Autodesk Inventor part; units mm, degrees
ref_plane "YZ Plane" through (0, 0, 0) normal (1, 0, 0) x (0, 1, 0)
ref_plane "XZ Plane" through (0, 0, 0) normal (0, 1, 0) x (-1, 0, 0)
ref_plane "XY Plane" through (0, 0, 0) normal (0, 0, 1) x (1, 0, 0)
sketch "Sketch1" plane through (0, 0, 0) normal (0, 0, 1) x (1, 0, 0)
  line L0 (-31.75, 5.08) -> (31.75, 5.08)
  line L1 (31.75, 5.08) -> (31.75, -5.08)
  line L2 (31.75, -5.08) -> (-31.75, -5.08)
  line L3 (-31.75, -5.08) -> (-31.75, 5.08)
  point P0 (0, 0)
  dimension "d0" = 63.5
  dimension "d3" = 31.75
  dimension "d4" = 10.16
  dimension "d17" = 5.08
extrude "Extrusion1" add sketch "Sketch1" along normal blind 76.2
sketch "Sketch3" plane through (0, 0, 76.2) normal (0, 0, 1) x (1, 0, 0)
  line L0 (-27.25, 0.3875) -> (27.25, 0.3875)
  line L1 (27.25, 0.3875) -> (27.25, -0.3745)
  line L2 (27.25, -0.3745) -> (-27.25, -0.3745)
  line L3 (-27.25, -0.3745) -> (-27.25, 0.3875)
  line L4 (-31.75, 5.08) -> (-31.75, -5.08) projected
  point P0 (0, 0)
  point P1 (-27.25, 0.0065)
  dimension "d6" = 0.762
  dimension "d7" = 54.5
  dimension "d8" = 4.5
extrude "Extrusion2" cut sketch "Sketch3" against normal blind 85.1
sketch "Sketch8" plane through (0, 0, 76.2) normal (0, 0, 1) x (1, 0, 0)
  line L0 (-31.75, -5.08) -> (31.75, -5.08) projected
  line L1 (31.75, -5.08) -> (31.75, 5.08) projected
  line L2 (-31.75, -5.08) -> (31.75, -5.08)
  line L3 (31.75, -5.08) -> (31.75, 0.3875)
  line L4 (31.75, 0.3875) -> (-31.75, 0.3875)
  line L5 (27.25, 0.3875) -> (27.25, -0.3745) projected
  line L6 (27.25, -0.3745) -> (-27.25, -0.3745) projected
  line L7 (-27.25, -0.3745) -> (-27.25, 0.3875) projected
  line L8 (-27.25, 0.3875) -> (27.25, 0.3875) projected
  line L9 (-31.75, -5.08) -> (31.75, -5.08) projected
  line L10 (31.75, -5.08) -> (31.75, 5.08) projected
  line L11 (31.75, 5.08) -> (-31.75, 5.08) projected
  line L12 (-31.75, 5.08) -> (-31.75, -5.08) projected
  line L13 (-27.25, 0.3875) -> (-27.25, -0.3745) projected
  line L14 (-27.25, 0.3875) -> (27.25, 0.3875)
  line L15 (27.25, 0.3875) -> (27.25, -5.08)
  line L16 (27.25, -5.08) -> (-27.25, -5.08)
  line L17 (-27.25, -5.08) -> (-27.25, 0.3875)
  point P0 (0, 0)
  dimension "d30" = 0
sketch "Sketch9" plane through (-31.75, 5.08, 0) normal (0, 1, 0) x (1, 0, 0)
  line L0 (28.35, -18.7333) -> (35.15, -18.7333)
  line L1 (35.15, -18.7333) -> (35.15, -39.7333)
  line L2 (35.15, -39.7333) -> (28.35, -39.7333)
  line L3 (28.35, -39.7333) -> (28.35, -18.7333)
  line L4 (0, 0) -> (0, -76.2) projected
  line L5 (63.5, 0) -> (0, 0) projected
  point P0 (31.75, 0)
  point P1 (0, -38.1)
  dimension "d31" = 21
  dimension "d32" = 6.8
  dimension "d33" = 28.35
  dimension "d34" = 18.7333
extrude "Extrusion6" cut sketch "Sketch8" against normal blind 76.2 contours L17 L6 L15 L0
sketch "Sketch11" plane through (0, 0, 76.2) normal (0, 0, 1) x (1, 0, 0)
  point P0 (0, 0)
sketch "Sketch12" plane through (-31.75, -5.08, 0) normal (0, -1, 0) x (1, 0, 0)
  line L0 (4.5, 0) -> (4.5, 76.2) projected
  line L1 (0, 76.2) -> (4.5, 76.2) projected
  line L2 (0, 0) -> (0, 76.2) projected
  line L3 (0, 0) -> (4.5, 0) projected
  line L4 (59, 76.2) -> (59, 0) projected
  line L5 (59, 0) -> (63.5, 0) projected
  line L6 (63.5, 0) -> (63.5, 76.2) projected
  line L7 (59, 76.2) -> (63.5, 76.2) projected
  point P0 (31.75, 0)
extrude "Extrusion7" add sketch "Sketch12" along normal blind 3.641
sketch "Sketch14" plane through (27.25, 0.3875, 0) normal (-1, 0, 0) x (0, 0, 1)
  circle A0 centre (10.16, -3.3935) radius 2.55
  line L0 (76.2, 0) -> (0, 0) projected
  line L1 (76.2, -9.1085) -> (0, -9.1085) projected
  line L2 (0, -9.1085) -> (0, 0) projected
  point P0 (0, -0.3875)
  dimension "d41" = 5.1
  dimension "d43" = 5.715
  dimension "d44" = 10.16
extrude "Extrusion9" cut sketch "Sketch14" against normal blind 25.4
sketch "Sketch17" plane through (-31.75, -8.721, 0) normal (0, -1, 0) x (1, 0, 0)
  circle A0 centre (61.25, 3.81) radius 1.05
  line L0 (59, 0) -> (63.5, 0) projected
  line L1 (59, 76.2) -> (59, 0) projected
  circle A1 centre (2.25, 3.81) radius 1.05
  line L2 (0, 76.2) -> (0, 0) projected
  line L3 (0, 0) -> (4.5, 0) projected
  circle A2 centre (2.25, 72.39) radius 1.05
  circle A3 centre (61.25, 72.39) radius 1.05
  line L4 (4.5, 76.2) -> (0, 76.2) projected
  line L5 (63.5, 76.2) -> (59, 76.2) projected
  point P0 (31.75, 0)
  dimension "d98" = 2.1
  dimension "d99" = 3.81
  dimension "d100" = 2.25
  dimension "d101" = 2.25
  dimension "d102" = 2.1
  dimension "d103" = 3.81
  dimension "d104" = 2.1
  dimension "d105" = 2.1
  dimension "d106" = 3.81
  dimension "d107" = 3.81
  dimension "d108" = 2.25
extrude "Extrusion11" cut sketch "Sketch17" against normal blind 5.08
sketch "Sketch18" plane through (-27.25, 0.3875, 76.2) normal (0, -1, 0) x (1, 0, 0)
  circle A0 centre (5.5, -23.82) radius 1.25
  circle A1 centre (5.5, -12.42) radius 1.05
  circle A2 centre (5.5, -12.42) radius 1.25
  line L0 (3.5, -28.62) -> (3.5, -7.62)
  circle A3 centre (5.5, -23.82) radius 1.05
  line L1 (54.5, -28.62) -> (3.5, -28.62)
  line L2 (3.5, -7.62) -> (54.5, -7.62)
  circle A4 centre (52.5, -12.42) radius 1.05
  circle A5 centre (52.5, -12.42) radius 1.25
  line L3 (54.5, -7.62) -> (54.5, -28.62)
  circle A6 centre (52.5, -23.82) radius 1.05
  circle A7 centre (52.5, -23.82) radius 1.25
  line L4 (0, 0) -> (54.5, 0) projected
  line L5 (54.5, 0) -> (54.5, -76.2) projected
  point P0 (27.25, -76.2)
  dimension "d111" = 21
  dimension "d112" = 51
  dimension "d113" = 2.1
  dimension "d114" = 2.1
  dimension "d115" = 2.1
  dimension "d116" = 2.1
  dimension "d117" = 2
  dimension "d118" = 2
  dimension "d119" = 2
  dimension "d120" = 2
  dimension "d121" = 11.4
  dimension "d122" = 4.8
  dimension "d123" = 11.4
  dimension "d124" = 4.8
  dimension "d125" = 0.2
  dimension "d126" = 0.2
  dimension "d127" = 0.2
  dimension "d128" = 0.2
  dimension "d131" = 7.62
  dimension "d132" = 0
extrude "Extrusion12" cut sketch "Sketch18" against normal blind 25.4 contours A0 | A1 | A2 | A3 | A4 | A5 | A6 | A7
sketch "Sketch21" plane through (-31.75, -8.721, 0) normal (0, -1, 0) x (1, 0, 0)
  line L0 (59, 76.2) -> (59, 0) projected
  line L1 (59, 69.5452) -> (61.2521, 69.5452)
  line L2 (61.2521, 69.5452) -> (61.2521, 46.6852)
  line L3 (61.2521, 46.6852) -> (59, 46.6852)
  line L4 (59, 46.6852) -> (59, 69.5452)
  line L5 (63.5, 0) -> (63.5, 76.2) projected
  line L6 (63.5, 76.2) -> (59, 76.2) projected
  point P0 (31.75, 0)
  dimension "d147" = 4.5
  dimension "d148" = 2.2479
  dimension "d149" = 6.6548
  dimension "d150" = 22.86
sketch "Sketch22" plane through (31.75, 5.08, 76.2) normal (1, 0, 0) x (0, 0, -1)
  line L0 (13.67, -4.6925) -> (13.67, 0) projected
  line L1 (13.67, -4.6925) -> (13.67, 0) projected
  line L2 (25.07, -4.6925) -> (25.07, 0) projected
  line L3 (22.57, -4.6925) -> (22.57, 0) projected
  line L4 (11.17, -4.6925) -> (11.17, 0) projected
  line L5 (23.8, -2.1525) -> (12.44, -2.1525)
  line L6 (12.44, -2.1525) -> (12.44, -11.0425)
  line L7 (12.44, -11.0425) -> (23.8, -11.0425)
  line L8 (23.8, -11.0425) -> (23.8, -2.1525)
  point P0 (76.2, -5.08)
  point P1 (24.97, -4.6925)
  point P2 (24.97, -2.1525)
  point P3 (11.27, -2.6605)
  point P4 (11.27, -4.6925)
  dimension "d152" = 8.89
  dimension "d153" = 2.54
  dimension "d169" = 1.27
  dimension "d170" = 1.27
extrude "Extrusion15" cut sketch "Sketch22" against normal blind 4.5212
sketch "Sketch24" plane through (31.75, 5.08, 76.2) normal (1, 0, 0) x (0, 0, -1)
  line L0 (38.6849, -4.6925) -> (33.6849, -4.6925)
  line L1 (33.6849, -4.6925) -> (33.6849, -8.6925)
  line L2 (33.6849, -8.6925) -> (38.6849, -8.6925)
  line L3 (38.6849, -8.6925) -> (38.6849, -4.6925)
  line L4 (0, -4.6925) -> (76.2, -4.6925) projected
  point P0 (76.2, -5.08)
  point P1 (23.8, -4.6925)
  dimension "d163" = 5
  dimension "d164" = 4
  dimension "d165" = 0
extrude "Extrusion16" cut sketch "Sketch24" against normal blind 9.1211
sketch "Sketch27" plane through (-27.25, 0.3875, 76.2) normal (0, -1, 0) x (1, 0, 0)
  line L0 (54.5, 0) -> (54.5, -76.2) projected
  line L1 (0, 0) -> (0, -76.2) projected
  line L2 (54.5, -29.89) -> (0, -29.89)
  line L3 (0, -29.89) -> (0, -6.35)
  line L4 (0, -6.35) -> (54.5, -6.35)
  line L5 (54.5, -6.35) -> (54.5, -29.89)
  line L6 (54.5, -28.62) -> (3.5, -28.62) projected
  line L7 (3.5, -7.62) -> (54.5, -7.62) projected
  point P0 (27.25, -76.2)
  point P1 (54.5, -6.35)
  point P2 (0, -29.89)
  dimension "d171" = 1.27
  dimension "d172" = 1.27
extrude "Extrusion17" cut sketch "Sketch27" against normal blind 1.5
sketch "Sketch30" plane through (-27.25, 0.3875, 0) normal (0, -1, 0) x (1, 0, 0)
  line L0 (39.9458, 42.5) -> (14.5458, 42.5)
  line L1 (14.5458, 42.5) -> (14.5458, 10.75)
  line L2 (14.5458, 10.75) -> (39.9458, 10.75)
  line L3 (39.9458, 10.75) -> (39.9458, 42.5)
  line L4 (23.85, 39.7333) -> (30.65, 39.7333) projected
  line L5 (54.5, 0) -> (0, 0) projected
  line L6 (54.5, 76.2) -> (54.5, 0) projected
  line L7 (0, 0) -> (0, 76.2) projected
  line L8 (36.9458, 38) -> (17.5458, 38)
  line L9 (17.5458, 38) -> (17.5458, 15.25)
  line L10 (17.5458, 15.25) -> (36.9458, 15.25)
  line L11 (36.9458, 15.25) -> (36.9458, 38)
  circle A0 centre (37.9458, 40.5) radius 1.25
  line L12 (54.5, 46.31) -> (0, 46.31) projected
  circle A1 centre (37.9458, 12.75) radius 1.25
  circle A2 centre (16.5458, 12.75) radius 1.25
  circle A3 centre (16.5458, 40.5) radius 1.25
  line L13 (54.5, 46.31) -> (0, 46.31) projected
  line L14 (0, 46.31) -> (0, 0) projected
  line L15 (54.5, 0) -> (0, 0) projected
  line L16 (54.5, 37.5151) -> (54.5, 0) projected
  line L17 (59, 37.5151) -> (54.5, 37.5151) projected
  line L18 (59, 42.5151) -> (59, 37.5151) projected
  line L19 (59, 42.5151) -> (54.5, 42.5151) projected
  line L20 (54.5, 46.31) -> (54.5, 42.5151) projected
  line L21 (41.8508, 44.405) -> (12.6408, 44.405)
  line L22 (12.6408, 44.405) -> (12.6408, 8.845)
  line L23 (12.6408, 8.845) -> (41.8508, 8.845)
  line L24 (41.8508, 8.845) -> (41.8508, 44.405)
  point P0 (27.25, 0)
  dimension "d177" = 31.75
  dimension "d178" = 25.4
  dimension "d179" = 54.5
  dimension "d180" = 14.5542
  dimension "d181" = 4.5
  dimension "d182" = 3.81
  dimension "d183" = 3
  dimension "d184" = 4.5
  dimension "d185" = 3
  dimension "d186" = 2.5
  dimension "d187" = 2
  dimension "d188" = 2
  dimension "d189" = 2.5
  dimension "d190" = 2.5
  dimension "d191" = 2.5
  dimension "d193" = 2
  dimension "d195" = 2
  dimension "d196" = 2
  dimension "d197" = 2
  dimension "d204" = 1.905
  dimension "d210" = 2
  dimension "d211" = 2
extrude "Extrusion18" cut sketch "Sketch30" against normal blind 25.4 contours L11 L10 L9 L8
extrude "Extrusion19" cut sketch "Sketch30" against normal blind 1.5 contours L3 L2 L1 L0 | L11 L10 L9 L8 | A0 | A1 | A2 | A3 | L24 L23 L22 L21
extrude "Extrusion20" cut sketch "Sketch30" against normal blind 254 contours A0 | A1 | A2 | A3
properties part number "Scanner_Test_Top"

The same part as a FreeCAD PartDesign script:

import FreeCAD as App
import Part
import Sketcher

V = App.Vector
Q = App.Units.Quantity


def add_polygon(sketch, points):
    """Adds a closed chain of lines whose ends are joined by coincident constraints."""
    first, n = sketch.GeometryCount, len(points)
    for a, b in zip(points, points[1:] + points[:1]):
        sketch.addGeometry(Part.LineSegment(App.Vector(*a, 0), App.Vector(*b, 0)), False)
    for i in range(n):
        sketch.addConstraint(Sketcher.Constraint("Coincident", first + i, 2, first + (i + 1) % n, 1))

doc = App.newDocument("Part")
body = doc.addObject("PartDesign::Body", "Body")

# Sketch on XY plane
sketch1 = body.newObject("Sketcher::SketchObject", "Sketch")
sketch1.AttachmentSupport = (doc.getObject("XY_Plane"), [""])
sketch1.MapMode = "FlatFace"
add_polygon(sketch1, [(32, 5), (-32, 5), (-32, -5), (32, -5)])  # lines 0-3
sketch1.addConstraint(Sketcher.Constraint("Horizontal", 0))
sketch1.addConstraint(Sketcher.Constraint("Vertical", 1))
sketch1.addConstraint(Sketcher.Constraint("Horizontal", 2))
sketch1.addConstraint(Sketcher.Constraint("Vertical", 3))
sketch1.addConstraint(Sketcher.Constraint("Symmetric", 0, 2, 2, 2, -1, 1))
sketch1.addConstraint(Sketcher.Constraint("DistanceX", 0, 2, 0, 1, Q("2.5 in")))
sketch1.addConstraint(Sketcher.Constraint("DistanceY", 1, 2, 1, 1, Q("0.4 in")))
pad1 = body.newObject("PartDesign::Pad", "Pad")
pad1.Profile = sketch1
pad1.Length = Q("3 in")

# Sketch on XY plane
sketch2 = body.newObject("Sketcher::SketchObject", "Sketch001")
sketch2.AttachmentSupport = (doc.getObject("XY_Plane"), [""])
sketch2.MapMode = "FlatFace"
sketch2.AttachmentOffset = App.Placement(V(0, 0, 3 * 25.4), App.Rotation())
add_polygon(sketch2, [(27.2, 0.4), (-27.2, 0.4), (-27.2, -0.4), (27.2, -0.4)])  # lines 0-3
sketch2.addConstraint(Sketcher.Constraint("Horizontal", 0))
sketch2.addConstraint(Sketcher.Constraint("Vertical", 1))
sketch2.addConstraint(Sketcher.Constraint("Horizontal", 2))
sketch2.addConstraint(Sketcher.Constraint("Vertical", 3))
sketch2.addConstraint(Sketcher.Constraint("DistanceY", 1, 2, 1, 1, Q("0.03 in")))
sketch2.addConstraint(Sketcher.Constraint("DistanceX", 0, 2, 0, 1, Q("54.5 mm")))
sketch2.addConstraint(Sketcher.Constraint("DistanceX", 0, 2, -1, 1, Q("27.25 mm")))
sketch2.addConstraint(Sketcher.Constraint("DistanceY", -1, 1, 0, 2, Q("0.3875 mm")))
pocket1 = body.newObject("PartDesign::Pocket", "Pocket")
pocket1.Profile = sketch2
pocket1.Length = Q("3.3503937 in")

# Sketch on XY plane
sketch3 = body.newObject("Sketcher::SketchObject", "Sketch002")
sketch3.AttachmentSupport = (doc.getObject("XY_Plane"), [""])
sketch3.MapMode = "FlatFace"
sketch3.AttachmentOffset = App.Placement(V(0, 0, 3 * 25.4), App.Rotation())
add_polygon(sketch3, [(-27.2, -0.4), (-27.2, -5.1), (27.2, -5.1), (27.2, -0.4)])  # lines 0-3
sketch3.addConstraint(Sketcher.Constraint("Vertical", 0))
sketch3.addConstraint(Sketcher.Constraint("Horizontal", 1))
sketch3.addConstraint(Sketcher.Constraint("Vertical", 2))
sketch3.addConstraint(Sketcher.Constraint("Horizontal", 3))
sketch3.addConstraint(Sketcher.Constraint("DistanceY", 0, 2, -1, 1, Q("0.2 in")))
sketch3.addConstraint(Sketcher.Constraint("DistanceX", 1, 1, 1, 2, Q("54.5 mm")))
sketch3.addConstraint(Sketcher.Constraint("DistanceY", 0, 2, 0, 1, Q("4.7055 mm")))
sketch3.addConstraint(Sketcher.Constraint("DistanceX", 0, 2, -1, 1, Q("27.25 mm")))
pocket2 = body.newObject("PartDesign::Pocket", "Pocket001")
pocket2.Profile = sketch3
pocket2.Length = Q("3 in")

# Sketch on XZ plane
sketch4 = body.newObject("Sketcher::SketchObject", "Sketch003")
sketch4.AttachmentSupport = (doc.getObject("XZ_Plane"), [""])
sketch4.MapMode = "FlatFace"
sketch4.AttachmentOffset = App.Placement(V(0, 0, 0.2 * 25.4), App.Rotation())
add_polygon(sketch4, [(-31.8, 0), (-27.2, 0), (-27.2, 76.2), (-31.8, 76.2)])  # lines 0-3
add_polygon(sketch4, [(31.8, 76.2), (27.2, 76.2), (27.2, 0), (31.8, 0)])  # lines 4-7
sketch4.addConstraint(Sketcher.Constraint("Horizontal", 0))
sketch4.addConstraint(Sketcher.Constraint("Vertical", 1))
sketch4.addConstraint(Sketcher.Constraint("Horizontal", 2))
sketch4.addConstraint(Sketcher.Constraint("Vertical", 3))
sketch4.addConstraint(Sketcher.Constraint("Horizontal", 4))
sketch4.addConstraint(Sketcher.Constraint("Vertical", 5))
sketch4.addConstraint(Sketcher.Constraint("Horizontal", 6))
sketch4.addConstraint(Sketcher.Constraint("Vertical", 7))
sketch4.addConstraint(Sketcher.Constraint("Symmetric", 0, 2, 5, 2, -1, 1))
sketch4.addConstraint(Sketcher.Constraint("Symmetric", 3, 2, 6, 2, -2))
sketch4.addConstraint(Sketcher.Constraint("Horizontal", 2, 2, 4, 2))
sketch4.addConstraint(Sketcher.Constraint("DistanceY", 1, 1, 1, 2, Q("3 in")))
sketch4.addConstraint(Sketcher.Constraint("DistanceX", 3, 2, 6, 2, Q("2.5 in")))
sketch4.addConstraint(Sketcher.Constraint("DistanceX", 0, 1, 0, 2, Q("4.5 mm")))
pad2 = body.newObject("PartDesign::Pad", "Pad001")
pad2.Profile = sketch4
pad2.Length = 3.641

# Sketch on YZ plane
sketch5 = body.newObject("Sketcher::SketchObject", "Sketch004")
sketch5.AttachmentSupport = (doc.getObject("YZ_Plane"), [""])
sketch5.MapMode = "FlatFace"
sketch5.AttachmentOffset = App.Placement(V(0, 0, 27.25), App.Rotation())
sketch5.addGeometry(Part.Circle(V(-3, 10.2, 0), V(0, 0, 1), 2.5), False)
sketch5.addConstraint(Sketcher.Constraint("DistanceY", -1, 1, 0, 3, Q("0.4 in")))
sketch5.addConstraint(Sketcher.Constraint("Diameter", 0, Q("5.1 mm")))
sketch5.addConstraint(Sketcher.Constraint("DistanceX", 0, 3, -1, 1, Q("3.006 mm")))
pocket3 = body.newObject("PartDesign::Pocket", "Pocket002")
pocket3.Profile = sketch5
pocket3.Length = Q("1 in")
pocket3.Reversed = True

# Sketch on XZ plane
sketch6 = body.newObject("Sketcher::SketchObject", "Sketch005")
sketch6.AttachmentSupport = (doc.getObject("XZ_Plane"), [""])
sketch6.MapMode = "FlatFace"
sketch6.AttachmentOffset = App.Placement(V(0, 0, 8.721), App.Rotation())
sketch6.addGeometry(Part.Circle(V(29.5, 3.8, 0), V(0, 0, 1), 1.1), False)
sketch6.addGeometry(Part.Circle(V(-29.5, 3.8, 0), V(0, 0, 1), 1.1), False)
sketch6.addGeometry(Part.Circle(V(-29.5, 72.4, 0), V(0, 0, 1), 1.1), False)
sketch6.addGeometry(Part.Circle(V(29.5, 72.4, 0), V(0, 0, 1), 1.1), False)
sketch6.addConstraint(Sketcher.Constraint("Equal", 0, 1))
sketch6.addConstraint(Sketcher.Constraint("Equal", 1, 2))
sketch6.addConstraint(Sketcher.Constraint("Equal", 2, 3))
sketch6.addConstraint(Sketcher.Constraint("Symmetric", 0, 3, 1, 3, -2))
sketch6.addConstraint(Sketcher.Constraint("Symmetric", 2, 3, 3, 3, -2))
sketch6.addConstraint(Sketcher.Constraint("Vertical", 1, 3, 2, 3))
sketch6.addConstraint(Sketcher.Constraint("Diameter", 0, Q("2.1 mm")))
sketch6.addConstraint(Sketcher.Constraint("DistanceY", -1, 1, 0, 3, Q("0.15 in")))
sketch6.addConstraint(Sketcher.Constraint("DistanceY", 1, 3, 2, 3, Q("2.7 in")))
sketch6.addConstraint(Sketcher.Constraint("DistanceX", -1, 1, 0, 3, Q("29.5 mm")))
pocket4 = body.newObject("PartDesign::Pocket", "Pocket003")
pocket4.Profile = sketch6
pocket4.Length = Q("0.2 in")

# Sketch on XZ plane
sketch7 = body.newObject("Sketcher::SketchObject", "Sketch006")
sketch7.AttachmentSupport = (doc.getObject("XZ_Plane"), [""])
sketch7.MapMode = "FlatFace"
sketch7.AttachmentOffset = App.Placement(V(0, 0, -0.3875), App.Rotation())
sketch7.addGeometry(Part.Circle(V(-21.8, 52.4, 0), V(0, 0, 1), 1.2), False)
sketch7.addGeometry(Part.Circle(V(-21.8, 63.8, 0), V(0, 0, 1), 1.2), False)
sketch7.addGeometry(Part.Circle(V(25.2, 63.8, 0), V(0, 0, 1), 1.2), False)
sketch7.addGeometry(Part.Circle(V(25.2, 52.4, 0), V(0, 0, 1), 1.2), False)
sketch7.addConstraint(Sketcher.Constraint("Equal", 0, 1))
sketch7.addConstraint(Sketcher.Constraint("Equal", 1, 2))
sketch7.addConstraint(Sketcher.Constraint("Equal", 2, 3))
sketch7.addConstraint(Sketcher.Constraint("Horizontal", 1, 3, 2, 3))
sketch7.addConstraint(Sketcher.Constraint("Horizontal", 0, 3, 3, 3))
sketch7.addConstraint(Sketcher.Constraint("Vertical", 0, 3, 1, 3))
sketch7.addConstraint(Sketcher.Constraint("Vertical", 2, 3, 3, 3))
sketch7.addConstraint(Sketcher.Constraint("Diameter", 0, Q("2.5 mm")))
sketch7.addConstraint(Sketcher.Constraint("DistanceY", 0, 3, 1, 3, Q("11.4 mm")))
sketch7.addConstraint(Sketcher.Constraint("DistanceX", 0, 3, -1, 1, Q("0.8563 in")))
sketch7.addConstraint(Sketcher.Constraint("DistanceY", -1, 1, 0, 3, Q("2.0622 in")))
sketch7.addConstraint(Sketcher.Constraint("DistanceX", -1, 1, 2, 3, Q("0.9941 in")))
pocket5 = body.newObject("PartDesign::Pocket", "Pocket004")
pocket5.Profile = sketch7
pocket5.Length = Q("1 in")

# Sketch on YZ plane
sketch8 = body.newObject("Sketcher::SketchObject", "Sketch007")
sketch8.AttachmentSupport = (doc.getObject("YZ_Plane"), [""])
sketch8.MapMode = "FlatFace"
sketch8.AttachmentOffset = App.Placement(V(0, 0, 1.25 * 25.4), App.Rotation())
add_polygon(sketch8, [(-6, 52), (3, 52), (3, 64), (-6, 64)])  # lines 0-3
sketch8.addConstraint(Sketcher.Constraint("Horizontal", 0))
sketch8.addConstraint(Sketcher.Constraint("Vertical", 1))
sketch8.addConstraint(Sketcher.Constraint("Horizontal", 2))
sketch8.addConstraint(Sketcher.Constraint("Vertical", 3))
sketch8.addConstraint(Sketcher.Constraint("DistanceX", 0, 1, 0, 2, Q("0.35 in")))
sketch8.addConstraint(Sketcher.Constraint("DistanceY", -1, 1, 0, 2, Q("2.063 in")))
sketch8.addConstraint(Sketcher.Constraint("DistanceY", 1, 1, 1, 2, Q("11.36 mm")))
sketch8.addConstraint(Sketcher.Constraint("DistanceX", -1, 1, 0, 2, Q("2.9275 mm")))
pocket6 = body.newObject("PartDesign::Pocket", "Pocket005")
pocket6.Profile = sketch8
pocket6.Length = Q("0.178 in")

# Sketch on YZ plane
sketch9 = body.newObject("Sketcher::SketchObject", "Sketch008")
sketch9.AttachmentSupport = (doc.getObject("YZ_Plane"), [""])
sketch9.MapMode = "FlatFace"
sketch9.AttachmentOffset = App.Placement(V(0, 0, 1.25 * 25.4), App.Rotation())
add_polygon(sketch9, [(-3.6, 37.5), (0.4, 37.5), (0.4, 42.5), (-3.6, 42.5)])  # lines 0-3
sketch9.addConstraint(Sketcher.Constraint("Horizontal", 0))
sketch9.addConstraint(Sketcher.Constraint("Vertical", 1))
sketch9.addConstraint(Sketcher.Constraint("Horizontal", 2))
sketch9.addConstraint(Sketcher.Constraint("Vertical", 3))
sketch9.addConstraint(Sketcher.Constraint("DistanceX", 0, 1, 0, 2, Q("4 mm")))
sketch9.addConstraint(Sketcher.Constraint("DistanceY", 1, 1, 1, 2, Q("5 mm")))
sketch9.addConstraint(Sketcher.Constraint("DistanceX", -1, 1, 0, 2, Q("0.3875 mm")))
sketch9.addConstraint(Sketcher.Constraint("DistanceY", -1, 1, 0, 2, Q("37.515 mm")))
pocket7 = body.newObject("PartDesign::Pocket", "Pocket006")
pocket7.Profile = sketch9
pocket7.Length = Q("0.3590984 in")

# Sketch on XZ plane
sketch10 = body.newObject("Sketcher::SketchObject", "Sketch009")
sketch10.AttachmentSupport = (doc.getObject("XZ_Plane"), [""])
sketch10.MapMode = "FlatFace"
sketch10.AttachmentOffset = App.Placement(V(0, 0, -0.3875), App.Rotation())
add_polygon(sketch10, [(27, 46), (27, 70), (-27, 70), (-27, 46)])  # lines 0-3
sketch10.addConstraint(Sketcher.Constraint("Vertical", 0))
sketch10.addConstraint(Sketcher.Constraint("Horizontal", 1))
sketch10.addConstraint(Sketcher.Constraint("Vertical", 2))
sketch10.addConstraint(Sketcher.Constraint("Horizontal", 3))
sketch10.addConstraint(Sketcher.Constraint("DistanceY", -1, 1, 0, 2, Q("2.75 in")))
sketch10.addConstraint(Sketcher.Constraint("DistanceX", 1, 2, 1, 1, Q("54.5 mm")))
sketch10.addConstraint(Sketcher.Constraint("DistanceY", 0, 1, 0, 2, Q("23.54 mm")))
sketch10.addConstraint(Sketcher.Constraint("DistanceX", -1, 1, 0, 2, Q("27.25 mm")))
pocket8 = body.newObject("PartDesign::Pocket", "Pocket007")
pocket8.Profile = sketch10
pocket8.Length = 1.5

# Sketch on XZ plane
sketch11 = body.newObject("Sketcher::SketchObject", "Sketch010")
sketch11.AttachmentSupport = (doc.getObject("XZ_Plane"), [""])
sketch11.MapMode = "FlatFace"
sketch11.AttachmentOffset = App.Placement(V(0, 0, -0.3875), App.Rotation())
add_polygon(sketch11, [(10, 15), (10, 38), (-10, 38), (-10, 15)])  # lines 0-3
sketch11.addConstraint(Sketcher.Constraint("Vertical", 0))
sketch11.addConstraint(Sketcher.Constraint("Horizontal", 1))
sketch11.addConstraint(Sketcher.Constraint("Vertical", 2))
sketch11.addConstraint(Sketcher.Constraint("Horizontal", 3))
sketch11.addConstraint(Sketcher.Constraint("DistanceX", 1, 2, 1, 1, Q("19.4 mm")))
sketch11.addConstraint(Sketcher.Constraint("DistanceY", 0, 1, 0, 2, Q("22.75 mm")))
sketch11.addConstraint(Sketcher.Constraint("DistanceY", -1, 1, 2, 2, Q("0.6004 in")))
sketch11.addConstraint(Sketcher.Constraint("DistanceX", -1, 1, 0, 2, Q("9.6958 mm")))
pocket9 = body.newObject("PartDesign::Pocket", "Pocket008")
pocket9.Profile = sketch11
pocket9.Length = Q("1 in")

# Sketch on XZ plane
sketch12 = body.newObject("Sketcher::SketchObject", "Sketch011")
sketch12.AttachmentSupport = (doc.getObject("XZ_Plane"), [""])
sketch12.MapMode = "FlatFace"
sketch12.AttachmentOffset = App.Placement(V(0, 0, -0.3875), App.Rotation())
add_polygon(sketch12, [(15, 9), (15, 44), (-15, 44), (-15, 9)])  # lines 0-3
sketch12.addConstraint(Sketcher.Constraint("Vertical", 0))
sketch12.addConstraint(Sketcher.Constraint("Horizontal", 1))
sketch12.addConstraint(Sketcher.Constraint("Vertical", 2))
sketch12.addConstraint(Sketcher.Constraint("Horizontal", 3))
sketch12.addConstraint(Sketcher.Constraint("DistanceY", 0, 1, 0, 2, Q("1.4 in")))
sketch12.addConstraint(Sketcher.Constraint("DistanceX", 1, 2, 1, 1, Q("1.15 in")))
sketch12.addConstraint(Sketcher.Constraint("DistanceX", -1, 1, 0, 2, Q("14.6008 mm")))
sketch12.addConstraint(Sketcher.Constraint("DistanceY", -1, 1, 0, 2, Q("44.405 mm")))
pocket10 = body.newObject("PartDesign::Pocket", "Pocket009")
pocket10.Profile = sketch12
pocket10.Length = 1.5

# Sketch on XZ plane
sketch13 = body.newObject("Sketcher::SketchObject", "Sketch012")
sketch13.AttachmentSupport = (doc.getObject("XZ_Plane"), [""])
sketch13.MapMode = "FlatFace"
sketch13.AttachmentOffset = App.Placement(V(0, 0, -0.3875), App.Rotation())
sketch13.addGeometry(Part.Circle(V(10.7, 40.5, 0), V(0, 0, 1), 1.2), False)
sketch13.addGeometry(Part.Circle(V(10.7, 12.8, 0), V(0, 0, 1), 1.2), False)
sketch13.addGeometry(Part.Circle(V(-10.7, 12.8, 0), V(0, 0, 1), 1.2), False)
sketch13.addGeometry(Part.Circle(V(-10.7, 40.5, 0), V(0, 0, 1), 1.2), False)
sketch13.addConstraint(Sketcher.Constraint("Equal", 0, 1))
sketch13.addConstraint(Sketcher.Constraint("Equal", 1, 2))
sketch13.addConstraint(Sketcher.Constraint("Equal", 2, 3))
sketch13.addConstraint(Sketcher.Constraint("Horizontal", 1, 3, 2, 3))
sketch13.addConstraint(Sketcher.Constraint("Horizontal", 0, 3, 3, 3))
sketch13.addConstraint(Sketcher.Constraint("Vertical", 0, 3, 1, 3))
sketch13.addConstraint(Sketcher.Constraint("Vertical", 2, 3, 3, 3))
sketch13.addConstraint(Sketcher.Constraint("Diameter", 0, Q("2.5 mm")))
sketch13.addConstraint(Sketcher.Constraint("DistanceX", -1, 1, 0, 3, Q("0.4211 in")))
sketch13.addConstraint(Sketcher.Constraint("DistanceY", -1, 1, 0, 3, Q("1.5945 in")))
sketch13.addConstraint(Sketcher.Constraint("DistanceY", -1, 1, 1, 3, Q("12.75 mm")))
sketch13.addConstraint(Sketcher.Constraint("DistanceX", 2, 3, -1, 1, Q("10.7042 mm")))
pocket11 = body.newObject("PartDesign::Pocket", "Pocket010")
pocket11.Profile = sketch13
pocket11.Length = Q("10 in")

doc.recompute()
